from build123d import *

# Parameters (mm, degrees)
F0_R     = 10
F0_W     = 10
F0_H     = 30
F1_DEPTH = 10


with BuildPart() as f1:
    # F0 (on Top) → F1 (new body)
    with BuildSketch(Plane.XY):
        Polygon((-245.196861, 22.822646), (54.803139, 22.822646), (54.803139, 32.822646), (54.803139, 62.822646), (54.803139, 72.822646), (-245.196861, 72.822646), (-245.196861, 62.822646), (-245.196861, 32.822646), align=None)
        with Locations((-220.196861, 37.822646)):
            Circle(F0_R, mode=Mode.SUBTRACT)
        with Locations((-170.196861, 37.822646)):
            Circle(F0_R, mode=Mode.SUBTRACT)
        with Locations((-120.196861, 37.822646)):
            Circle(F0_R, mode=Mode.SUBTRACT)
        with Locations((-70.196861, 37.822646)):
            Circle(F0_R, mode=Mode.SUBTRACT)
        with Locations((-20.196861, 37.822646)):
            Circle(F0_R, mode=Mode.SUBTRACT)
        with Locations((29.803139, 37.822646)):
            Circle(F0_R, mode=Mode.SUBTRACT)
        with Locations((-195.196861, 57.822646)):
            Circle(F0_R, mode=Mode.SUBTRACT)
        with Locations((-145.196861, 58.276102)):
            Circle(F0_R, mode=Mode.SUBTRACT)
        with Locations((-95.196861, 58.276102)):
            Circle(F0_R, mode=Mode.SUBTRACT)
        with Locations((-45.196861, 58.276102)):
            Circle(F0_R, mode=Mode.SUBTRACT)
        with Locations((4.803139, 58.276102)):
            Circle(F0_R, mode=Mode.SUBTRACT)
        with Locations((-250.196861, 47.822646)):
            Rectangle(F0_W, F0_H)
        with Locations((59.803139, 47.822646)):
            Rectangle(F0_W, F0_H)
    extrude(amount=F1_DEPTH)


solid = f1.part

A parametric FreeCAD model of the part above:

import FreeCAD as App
import Part
import Sketcher
from FreeCAD import Vector


def add_polygon(sketch, points):
    """Adds a closed chain of lines whose ends are joined by coincident constraints."""
    first, n = sketch.GeometryCount, len(points)
    for a, b in zip(points, points[1:] + points[:1]):
        sketch.addGeometry(Part.LineSegment(App.Vector(*a, 0), App.Vector(*b, 0)), False)
    for i in range(n):
        sketch.addConstraint(Sketcher.Constraint("Coincident", first + i, 2, first + (i + 1) % n, 1))

doc = App.newDocument("Part")
body = doc.addObject("PartDesign::Body", "Body")

# Sketch on XY plane
sketch1 = body.newObject("Sketcher::SketchObject", "Sketch")
sketch1.AttachmentSupport = (doc.getObject("XY_Plane"), [""])
sketch1.MapMode = "FlatFace"
add_polygon(sketch1, [(-245, 23), (55, 23), (55, 33), (65, 33), (65, 63), (55, 63), (55, 73), (-245, 73), (-245, 63), (-255, 63), (-255, 33), (-245, 33)])  # lines 0-11
sketch1.addGeometry(Part.Circle(Vector(-220, 38, 0), Vector(0, 0, 1), 10), False)  # 12
sketch1.addGeometry(Part.Circle(Vector(-170, 38, 0), Vector(0, 0, 1), 10), False)  # 13
sketch1.addGeometry(Part.Circle(Vector(-120, 38, 0), Vector(0, 0, 1), 10), False)  # 14
sketch1.addGeometry(Part.Circle(Vector(-70, 38, 0), Vector(0, 0, 1), 10), False)  # 15
sketch1.addGeometry(Part.Circle(Vector(-20, 38, 0), Vector(0, 0, 1), 10), False)  # 16
sketch1.addGeometry(Part.Circle(Vector(30, 38, 0), Vector(0, 0, 1), 10), False)  # 17
sketch1.addGeometry(Part.Circle(Vector(-195, 58, 0), Vector(0, 0, 1), 10), False)  # 18
sketch1.addGeometry(Part.Circle(Vector(-145, 58, 0), Vector(0, 0, 1), 10), False)  # 19
sketch1.addGeometry(Part.Circle(Vector(-95, 58, 0), Vector(0, 0, 1), 10), False)  # 20
sketch1.addGeometry(Part.Circle(Vector(-45, 58, 0), Vector(0, 0, 1), 10), False)  # 21
sketch1.addGeometry(Part.Circle(Vector(5, 58, 0), Vector(0, 0, 1), 10), False)  # 22
sketch1.addConstraint([
    Sketcher.Constraint("Horizontal", 0),
    Sketcher.Constraint("Vertical", 1),
    Sketcher.Constraint("Horizontal", 2),
    Sketcher.Constraint("Vertical", 3),
    Sketcher.Constraint("Horizontal", 4),
    Sketcher.Constraint("Vertical", 5),
    Sketcher.Constraint("Horizontal", 6),
    Sketcher.Constraint("Vertical", 7),
    Sketcher.Constraint("Horizontal", 8),
    Sketcher.Constraint("Vertical", 9),
    Sketcher.Constraint("Horizontal", 10),
    Sketcher.Constraint("Vertical", 11),
    Sketcher.Constraint("Equal", 12, 13),
    Sketcher.Constraint("Equal", 13, 14),
    Sketcher.Constraint("Equal", 14, 15),
    Sketcher.Constraint("Equal", 15, 16),
    Sketcher.Constraint("Equal", 16, 17),
    Sketcher.Constraint("Equal", 17, 18),
    Sketcher.Constraint("Equal", 18, 19),
    Sketcher.Constraint("Equal", 19, 20),
    Sketcher.Constraint("Equal", 20, 21),
    Sketcher.Constraint("Equal", 21, 22),
    Sketcher.Constraint("Horizontal", 12, 3, 13, 3),
    Sketcher.Constraint("Horizontal", 13, 3, 14, 3),
    Sketcher.Constraint("Horizontal", 14, 3, 15, 3),
    Sketcher.Constraint("Horizontal", 15, 3, 16, 3),
    Sketcher.Constraint("Horizontal", 16, 3, 17, 3),
    Sketcher.Constraint("Horizontal", 19, 3, 20, 3),
    Sketcher.Constraint("Horizontal", 20, 3, 21, 3),
    Sketcher.Constraint("Horizontal", 21, 3, 22, 3),
    Sketcher.Constraint("Horizontal", 4, 2, 7, 2),
    Sketcher.Constraint("Horizontal", 2, 2, 9, 2),
    Sketcher.Constraint("Vertical", 1, 2, 4, 2),
    Sketcher.Constraint("Vertical", 7, 2, 10, 2),
    Sketcher.Constraint("Equal", 4, 8),
    Sketcher.Constraint("Equal", 10, 1),
    Sketcher.Constraint("Equal", 1, 5),
    Sketcher.Constraint("Diameter", 12, 20.0),
    Sketcher.Constraint("DistanceX", 0, 1, 0, 2, 300.0),
    Sketcher.Constraint("DistanceX", 2, 1, 2, 2, 10.0),
    Sketcher.Constraint("DistanceY", 3, 1, 3, 2, 30.0),
    Sketcher.Constraint("DistanceX", 12, 3, 13, 3, 50.0),
    Sketcher.Constraint("DistanceX", 13, 3, 14, 3, 50.0),
    Sketcher.Constraint("DistanceX", 14, 3, 15, 3, 50.0),
    Sketcher.Constraint("DistanceX", 15, 3, 16, 3, 50.0),
    Sketcher.Constraint("DistanceX", 16, 3, 17, 3, 50.0),
    Sketcher.Constraint("DistanceX", 12, 3, 18, 3, 25.0),
    Sketcher.Constraint("DistanceY", 12, 3, 18, 3, 20.0),
    Sketcher.Constraint("DistanceX", 13, 3, 19, 3, 25.0),
    Sketcher.Constraint("DistanceX", 14, 3, 20, 3, 25.0),
    Sketcher.Constraint("DistanceX", 15, 3, 21, 3, 25.0),
    Sketcher.Constraint("DistanceX", 16, 3, 22, 3, 25.0),
    Sketcher.Constraint("DistanceX", 17, 3, 0, 2, 25.0),
    Sketcher.Constraint("DistanceY", 0, 2, 17, 3, 15.0),
    Sketcher.Constraint("DistanceX", 12, 3, -1, 1, 220.196861),
    Sketcher.Constraint("DistanceY", -1, 1, 12, 3, 37.822646),
    Sketcher.Constraint("DistanceY", -1, 1, 19, 3, 58.276102),
])
pad1 = body.newObject("PartDesign::Pad", "Pad")
pad1.Profile = sketch1
pad1.Length = 10

doc.recompute()
